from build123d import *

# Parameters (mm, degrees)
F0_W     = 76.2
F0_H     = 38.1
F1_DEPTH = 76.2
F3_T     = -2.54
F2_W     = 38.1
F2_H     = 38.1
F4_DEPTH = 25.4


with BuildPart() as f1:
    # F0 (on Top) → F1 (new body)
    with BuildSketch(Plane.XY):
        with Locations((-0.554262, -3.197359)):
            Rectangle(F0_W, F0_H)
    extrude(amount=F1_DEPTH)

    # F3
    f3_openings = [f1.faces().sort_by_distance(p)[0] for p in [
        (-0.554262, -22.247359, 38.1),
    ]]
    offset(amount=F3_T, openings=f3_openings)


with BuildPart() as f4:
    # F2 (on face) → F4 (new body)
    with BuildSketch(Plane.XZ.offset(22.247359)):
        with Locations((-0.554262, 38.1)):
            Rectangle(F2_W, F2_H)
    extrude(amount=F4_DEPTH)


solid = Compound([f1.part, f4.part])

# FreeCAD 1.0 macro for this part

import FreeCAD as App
import Part
import Sketcher
Q = App.Units.Quantity


def faces_at(feature, points):
    """Names of the faces that lie closest to the given points."""
    faces = feature.Shape.Faces
    near = lambda p: min(range(len(faces)), key=lambda i: faces[i].distToShape(Part.Vertex(*p))[0])
    return sorted({f"Face{near(p) + 1}" for p in points})

doc = App.newDocument("Part")
body = doc.addObject("PartDesign::Body", "Body")

# Sketch on XY plane
sketch1 = doc.addObject("Sketcher::SketchObject", "Sketch")
body.addObject(sketch1)
sketch1.AttachmentSupport = (doc.XY_Plane, [""])
sketch1.MapMode = "FlatFace"
sketch1.addGeometry(Part.LineSegment(App.Vector(-39, 16, 0), App.Vector(-39, -22, 0)), False)
sketch1.addGeometry(Part.LineSegment(App.Vector(-39, -22, 0), App.Vector(38, -22, 0)), False)
sketch1.addGeometry(Part.LineSegment(App.Vector(38, -22, 0), App.Vector(38, 16, 0)), False)
sketch1.addGeometry(Part.LineSegment(App.Vector(38, 16, 0), App.Vector(-39, 16, 0)), False)
sketch1.addConstraint(Sketcher.Constraint("Coincident", 0, 2, 1, 1))
sketch1.addConstraint(Sketcher.Constraint("Coincident", 1, 2, 2, 1))
sketch1.addConstraint(Sketcher.Constraint("Coincident", 2, 2, 3, 1))
sketch1.addConstraint(Sketcher.Constraint("Coincident", 3, 2, 0, 1))
sketch1.addConstraint(Sketcher.Constraint("Vertical", 0))
sketch1.addConstraint(Sketcher.Constraint("Horizontal", 1))
sketch1.addConstraint(Sketcher.Constraint("Vertical", 2))
sketch1.addConstraint(Sketcher.Constraint("Horizontal", 3))
sketch1.addConstraint(Sketcher.Constraint("DistanceX", 1, 1, 1, 2, Q("3 in")))
sketch1.addConstraint(Sketcher.Constraint("DistanceY", 0, 2, 0, 1, Q("1.5 in")))
sketch1.addConstraint(Sketcher.Constraint("DistanceY", 0, 2, -1, 1, Q("22.247359 mm")))
sketch1.addConstraint(Sketcher.Constraint("DistanceX", 0, 2, -1, 1, Q("38.654262 mm")))
pad1 = doc.addObject("PartDesign::Pad", "Pad")
body.addObject(pad1)
pad1.Profile = sketch1
pad1.Length = Q("3 in")
doc.recompute()

thickness = doc.addObject("PartDesign::Thickness", "Thickness")
body.addObject(thickness)
thickness.Base = (pad1, faces_at(pad1, [(-0.554, -22.247, 38.1)]))
thickness.Value = Q("0.1 in")
thickness.Reversed = True
thickness.Join = "Arc"
body2 = doc.addObject("PartDesign::Body", "Body001")

# Sketch on XZ plane
sketch2 = doc.addObject("Sketcher::SketchObject", "Sketch001")
body2.addObject(sketch2)
sketch2.AttachmentSupport = (doc.getObject("XZ_Plane001"), [""])
sketch2.MapMode = "FlatFace"
sketch2.AttachmentOffset = App.Placement(App.Vector(0, 0, 22.247359), App.Rotation())
sketch2.addGeometry(Part.LineSegment(App.Vector(-20, 57, 0), App.Vector(-20, 19, 0)), False)
sketch2.addGeometry(Part.LineSegment(App.Vector(-20, 19, 0), App.Vector(18, 19, 0)), False)
sketch2.addGeometry(Part.LineSegment(App.Vector(18, 19, 0), App.Vector(18, 57, 0)), False)
sketch2.addGeometry(Part.LineSegment(App.Vector(18, 57, 0), App.Vector(-20, 57, 0)), False)
sketch2.addConstraint(Sketcher.Constraint("Coincident", 0, 2, 1, 1))
sketch2.addConstraint(Sketcher.Constraint("Coincident", 1, 2, 2, 1))
sketch2.addConstraint(Sketcher.Constraint("Coincident", 2, 2, 3, 1))
sketch2.addConstraint(Sketcher.Constraint("Coincident", 3, 2, 0, 1))
sketch2.addConstraint(Sketcher.Constraint("Vertical", 0))
sketch2.addConstraint(Sketcher.Constraint("Horizontal", 1))
sketch2.addConstraint(Sketcher.Constraint("Vertical", 2))
sketch2.addConstraint(Sketcher.Constraint("Horizontal", 3))
sketch2.addConstraint(Sketcher.Constraint("Equal", 3, 0))
sketch2.addConstraint(Sketcher.Constraint("DistanceX", 1, 1, 1, 2, Q("1.5 in")))
sketch2.addConstraint(Sketcher.Constraint("DistanceY", -1, 1, 0, 2, Q("0.75 in")))
sketch2.addConstraint(Sketcher.Constraint("DistanceX", 0, 2, -1, 1, Q("19.604262 mm")))
pad2 = doc.addObject("PartDesign::Pad", "Pad001")
body2.addObject(pad2)
pad2.Profile = sketch2
pad2.Length = Q("1 in")

doc.recompute()
